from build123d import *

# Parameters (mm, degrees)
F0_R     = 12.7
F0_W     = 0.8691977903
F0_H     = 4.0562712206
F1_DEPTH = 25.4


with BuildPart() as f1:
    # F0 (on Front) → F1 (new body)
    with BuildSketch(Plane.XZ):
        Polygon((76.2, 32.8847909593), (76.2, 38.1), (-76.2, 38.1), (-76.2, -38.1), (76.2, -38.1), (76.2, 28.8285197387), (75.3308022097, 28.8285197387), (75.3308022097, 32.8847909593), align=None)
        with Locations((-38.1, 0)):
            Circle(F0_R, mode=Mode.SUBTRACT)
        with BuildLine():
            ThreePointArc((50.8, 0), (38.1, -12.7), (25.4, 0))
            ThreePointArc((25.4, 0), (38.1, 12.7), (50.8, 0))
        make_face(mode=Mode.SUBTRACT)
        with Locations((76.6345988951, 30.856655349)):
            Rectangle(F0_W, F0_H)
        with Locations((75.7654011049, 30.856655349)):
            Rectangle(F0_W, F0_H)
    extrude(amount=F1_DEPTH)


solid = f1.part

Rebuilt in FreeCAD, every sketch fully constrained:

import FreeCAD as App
import Part
import Sketcher

V = App.Vector
Q = App.Units.Quantity

doc = App.newDocument("Part")
body = doc.addObject("PartDesign::Body", "Body")

sketch1 = body.newObject("Sketcher::SketchObject", "Sketch")
sketch1.AttachmentSupport = (doc.getObject("XZ_Plane"), [""])
sketch1.MapMode = "FlatFace"
sketch1.addGeometry([
    Part.LineSegment(V(76.2, 32.9, 0), V(76.2, 38.1, 0)),
    Part.LineSegment(V(76.2, 38.1, 0), V(-76.2, 38.1, 0)),
    Part.LineSegment(V(-76.2, 38.1, 0), V(-76.2, -38.1, 0)),
    Part.LineSegment(V(-76.2, -38.1, 0), V(76.2, -38.1, 0)),
    Part.LineSegment(V(76.2, -38.1, 0), V(76.2, 28.8, 0)),
    Part.LineSegment(V(76.2, 28.8, 0), V(77.1, 28.8, 0)),
    Part.LineSegment(V(77.1, 28.8, 0), V(77.1, 32.9, 0)),
    Part.LineSegment(V(77.1, 32.9, 0), V(76.2, 32.9, 0)),
    Part.Circle(V(-38.1, 0, 0), V(0, 0, 1), 12.7),
    Part.Circle(V(38.1, 0, 0), V(0, 0, 1), 12.7),
], False)
sketch1.addConstraint([
    Sketcher.Constraint("Coincident", 0, 2, 1, 1),
    Sketcher.Constraint("Coincident", 1, 2, 2, 1),
    Sketcher.Constraint("Coincident", 2, 2, 3, 1),
    Sketcher.Constraint("Coincident", 3, 2, 4, 1),
    Sketcher.Constraint("Coincident", 4, 2, 5, 1),
    Sketcher.Constraint("Coincident", 5, 2, 6, 1),
    Sketcher.Constraint("Coincident", 6, 2, 7, 1),
    Sketcher.Constraint("Coincident", 7, 2, 0, 1),
    Sketcher.Constraint("Vertical", 0),
    Sketcher.Constraint("Horizontal", 1),
    Sketcher.Constraint("Vertical", 2),
    Sketcher.Constraint("Horizontal", 3),
    Sketcher.Constraint("Vertical", 4),
    Sketcher.Constraint("Horizontal", 5),
    Sketcher.Constraint("Vertical", 6),
    Sketcher.Constraint("Horizontal", 7),
    Sketcher.Constraint("Equal", 8, 9),
    Sketcher.Constraint("Symmetric", 8, 3, 9, 3, -1, 1),
    Sketcher.Constraint("Symmetric", 0, 2, 2, 2, -1, 1),
    Sketcher.Constraint("PointOnObject", 8, 3, -1),
    Sketcher.Constraint("Vertical", 0, 2, 3, 2),
    Sketcher.Constraint("Diameter", 8, Q("1 in")),
    Sketcher.Constraint("DistanceX", 1, 2, 1, 1, Q("6 in")),
    Sketcher.Constraint("DistanceY", 2, 2, 2, 1, Q("3 in")),
    Sketcher.Constraint("DistanceX", 8, 3, 9, 3, Q("3 in")),
    Sketcher.Constraint("DistanceY", 0, 1, 0, 2, 5.215209),
    Sketcher.Constraint("DistanceY", 4, 1, 4, 2, 66.92852),
    Sketcher.Constraint("DistanceX", 5, 1, 5, 2, 0.869198),
])
pad1 = body.newObject("PartDesign::Pad", "Pad")
pad1.Profile = sketch1
pad1.Length = Q("1 in")

doc.recompute()
